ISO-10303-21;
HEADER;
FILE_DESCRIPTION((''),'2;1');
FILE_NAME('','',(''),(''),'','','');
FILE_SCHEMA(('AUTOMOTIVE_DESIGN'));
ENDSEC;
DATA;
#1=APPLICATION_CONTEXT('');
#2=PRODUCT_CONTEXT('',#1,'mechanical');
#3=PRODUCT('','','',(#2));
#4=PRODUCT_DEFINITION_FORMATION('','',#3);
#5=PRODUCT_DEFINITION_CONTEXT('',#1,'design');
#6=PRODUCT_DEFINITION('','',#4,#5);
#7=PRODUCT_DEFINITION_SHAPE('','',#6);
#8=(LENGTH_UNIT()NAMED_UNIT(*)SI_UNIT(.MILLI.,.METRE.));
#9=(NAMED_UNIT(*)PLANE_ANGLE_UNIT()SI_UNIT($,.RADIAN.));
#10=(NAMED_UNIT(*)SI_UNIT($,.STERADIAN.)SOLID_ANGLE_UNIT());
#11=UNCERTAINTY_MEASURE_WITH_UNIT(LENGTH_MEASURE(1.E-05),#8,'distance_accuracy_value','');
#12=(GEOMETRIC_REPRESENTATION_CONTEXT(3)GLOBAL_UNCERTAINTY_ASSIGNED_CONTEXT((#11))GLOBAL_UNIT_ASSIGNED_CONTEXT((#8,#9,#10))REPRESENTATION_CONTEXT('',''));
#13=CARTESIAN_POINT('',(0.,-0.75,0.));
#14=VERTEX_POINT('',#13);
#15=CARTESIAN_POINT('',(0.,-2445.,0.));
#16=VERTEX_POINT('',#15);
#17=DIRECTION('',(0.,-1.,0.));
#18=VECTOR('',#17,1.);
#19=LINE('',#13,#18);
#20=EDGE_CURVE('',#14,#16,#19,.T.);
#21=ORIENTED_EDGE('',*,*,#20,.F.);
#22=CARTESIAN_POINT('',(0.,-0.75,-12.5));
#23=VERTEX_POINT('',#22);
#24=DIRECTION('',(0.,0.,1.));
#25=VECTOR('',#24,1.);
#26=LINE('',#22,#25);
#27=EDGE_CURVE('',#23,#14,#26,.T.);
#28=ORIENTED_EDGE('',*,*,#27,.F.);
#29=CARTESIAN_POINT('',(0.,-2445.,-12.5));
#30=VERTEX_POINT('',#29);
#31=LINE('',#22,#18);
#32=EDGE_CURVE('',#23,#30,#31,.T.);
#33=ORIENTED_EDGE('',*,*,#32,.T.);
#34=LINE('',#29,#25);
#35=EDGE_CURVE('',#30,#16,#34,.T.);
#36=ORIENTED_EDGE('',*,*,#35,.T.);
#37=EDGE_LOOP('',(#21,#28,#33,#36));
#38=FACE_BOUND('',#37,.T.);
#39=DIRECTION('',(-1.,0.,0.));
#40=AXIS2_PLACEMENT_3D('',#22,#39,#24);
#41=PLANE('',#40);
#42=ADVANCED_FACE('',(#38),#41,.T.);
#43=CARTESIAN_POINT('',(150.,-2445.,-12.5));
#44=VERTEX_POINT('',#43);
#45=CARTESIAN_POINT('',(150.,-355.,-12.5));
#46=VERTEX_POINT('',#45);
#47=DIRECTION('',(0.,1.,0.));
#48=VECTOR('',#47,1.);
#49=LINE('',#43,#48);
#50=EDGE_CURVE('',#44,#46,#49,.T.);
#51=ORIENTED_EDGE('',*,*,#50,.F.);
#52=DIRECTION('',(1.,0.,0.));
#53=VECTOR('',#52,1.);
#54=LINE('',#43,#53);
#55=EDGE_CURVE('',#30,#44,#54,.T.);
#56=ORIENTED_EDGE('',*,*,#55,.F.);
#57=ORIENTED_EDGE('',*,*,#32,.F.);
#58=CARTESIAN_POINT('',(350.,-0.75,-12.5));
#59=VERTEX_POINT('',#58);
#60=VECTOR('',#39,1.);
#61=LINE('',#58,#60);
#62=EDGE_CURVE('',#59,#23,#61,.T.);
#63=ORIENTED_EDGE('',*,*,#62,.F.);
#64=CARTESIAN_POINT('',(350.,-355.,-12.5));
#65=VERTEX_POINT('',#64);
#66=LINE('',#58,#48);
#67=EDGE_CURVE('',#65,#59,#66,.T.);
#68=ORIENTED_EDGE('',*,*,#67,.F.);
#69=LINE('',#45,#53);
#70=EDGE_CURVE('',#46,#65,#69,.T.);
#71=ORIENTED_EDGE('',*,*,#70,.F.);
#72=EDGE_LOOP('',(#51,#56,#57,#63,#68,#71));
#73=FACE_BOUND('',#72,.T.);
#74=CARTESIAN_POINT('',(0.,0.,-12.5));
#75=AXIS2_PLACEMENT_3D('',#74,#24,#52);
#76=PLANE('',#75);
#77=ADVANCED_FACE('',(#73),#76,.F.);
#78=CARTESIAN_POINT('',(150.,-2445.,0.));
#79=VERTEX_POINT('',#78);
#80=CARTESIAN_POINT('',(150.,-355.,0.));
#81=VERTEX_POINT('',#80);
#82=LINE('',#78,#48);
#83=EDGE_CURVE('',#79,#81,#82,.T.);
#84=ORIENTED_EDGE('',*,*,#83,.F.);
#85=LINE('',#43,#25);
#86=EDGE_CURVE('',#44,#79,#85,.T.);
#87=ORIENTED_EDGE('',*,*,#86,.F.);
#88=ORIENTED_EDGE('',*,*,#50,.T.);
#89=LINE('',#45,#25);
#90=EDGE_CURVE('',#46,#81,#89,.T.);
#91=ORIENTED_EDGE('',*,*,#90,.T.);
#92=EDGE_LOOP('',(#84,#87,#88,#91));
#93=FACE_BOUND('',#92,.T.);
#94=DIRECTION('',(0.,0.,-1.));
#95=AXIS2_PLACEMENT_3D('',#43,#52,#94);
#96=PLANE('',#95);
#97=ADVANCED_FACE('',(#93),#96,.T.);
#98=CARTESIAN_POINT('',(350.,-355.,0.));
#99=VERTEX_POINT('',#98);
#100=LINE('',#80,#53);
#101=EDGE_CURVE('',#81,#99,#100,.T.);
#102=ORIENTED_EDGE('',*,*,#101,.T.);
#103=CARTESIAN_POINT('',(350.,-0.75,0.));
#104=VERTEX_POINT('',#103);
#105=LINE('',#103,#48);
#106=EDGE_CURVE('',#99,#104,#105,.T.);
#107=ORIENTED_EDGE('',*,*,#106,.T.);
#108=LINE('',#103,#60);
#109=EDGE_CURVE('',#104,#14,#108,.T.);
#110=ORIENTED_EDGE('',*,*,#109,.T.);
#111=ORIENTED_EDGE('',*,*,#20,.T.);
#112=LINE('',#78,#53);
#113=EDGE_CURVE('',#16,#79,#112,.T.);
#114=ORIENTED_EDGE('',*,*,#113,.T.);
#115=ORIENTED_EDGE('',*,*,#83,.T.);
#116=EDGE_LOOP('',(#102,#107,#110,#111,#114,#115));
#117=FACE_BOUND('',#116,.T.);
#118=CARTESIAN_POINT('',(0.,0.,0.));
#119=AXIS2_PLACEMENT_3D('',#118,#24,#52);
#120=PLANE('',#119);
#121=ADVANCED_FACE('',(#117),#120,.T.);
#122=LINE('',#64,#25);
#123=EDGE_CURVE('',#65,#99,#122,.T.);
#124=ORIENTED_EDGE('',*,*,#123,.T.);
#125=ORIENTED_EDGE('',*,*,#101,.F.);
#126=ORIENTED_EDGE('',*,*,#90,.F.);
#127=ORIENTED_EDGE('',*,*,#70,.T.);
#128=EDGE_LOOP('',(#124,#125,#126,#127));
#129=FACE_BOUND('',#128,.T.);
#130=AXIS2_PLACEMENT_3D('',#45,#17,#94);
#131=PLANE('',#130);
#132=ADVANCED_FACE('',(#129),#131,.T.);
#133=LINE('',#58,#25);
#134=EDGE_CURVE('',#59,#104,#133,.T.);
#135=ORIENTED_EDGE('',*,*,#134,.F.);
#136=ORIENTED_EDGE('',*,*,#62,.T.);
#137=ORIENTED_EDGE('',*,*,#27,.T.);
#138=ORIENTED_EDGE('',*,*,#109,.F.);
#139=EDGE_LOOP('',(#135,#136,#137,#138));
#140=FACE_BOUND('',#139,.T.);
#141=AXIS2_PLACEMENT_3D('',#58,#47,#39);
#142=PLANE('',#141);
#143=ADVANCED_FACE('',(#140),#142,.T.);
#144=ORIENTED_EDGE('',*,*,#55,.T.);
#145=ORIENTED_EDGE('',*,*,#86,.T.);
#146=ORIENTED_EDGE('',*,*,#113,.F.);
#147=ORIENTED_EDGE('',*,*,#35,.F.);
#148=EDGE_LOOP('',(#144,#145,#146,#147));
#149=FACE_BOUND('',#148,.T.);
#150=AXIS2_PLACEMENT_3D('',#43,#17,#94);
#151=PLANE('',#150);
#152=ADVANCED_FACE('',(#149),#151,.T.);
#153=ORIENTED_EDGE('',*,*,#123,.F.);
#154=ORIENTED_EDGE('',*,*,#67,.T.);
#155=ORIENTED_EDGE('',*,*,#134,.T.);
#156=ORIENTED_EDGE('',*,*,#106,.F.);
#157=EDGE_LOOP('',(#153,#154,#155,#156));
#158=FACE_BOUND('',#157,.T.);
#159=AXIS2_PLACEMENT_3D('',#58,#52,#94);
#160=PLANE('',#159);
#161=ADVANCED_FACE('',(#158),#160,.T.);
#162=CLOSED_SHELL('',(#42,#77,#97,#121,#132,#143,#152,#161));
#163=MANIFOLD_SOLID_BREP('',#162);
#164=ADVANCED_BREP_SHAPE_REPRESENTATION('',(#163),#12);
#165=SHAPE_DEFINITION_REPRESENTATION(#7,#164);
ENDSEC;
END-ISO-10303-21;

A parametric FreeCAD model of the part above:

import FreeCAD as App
import Part
import Sketcher


def add_polygon(sketch, points):
    """Adds a closed chain of lines whose ends are joined by coincident constraints."""
    first, n = sketch.GeometryCount, len(points)
    for a, b in zip(points, points[1:] + points[:1]):
        sketch.addGeometry(Part.LineSegment(App.Vector(*a, 0), App.Vector(*b, 0)), False)
    for i in range(n):
        sketch.addConstraint(Sketcher.Constraint("Coincident", first + i, 2, first + (i + 1) % n, 1))

doc = App.newDocument("Part")
body = doc.addObject("PartDesign::Body", "Body")

# Sketch on XY plane
sketch1 = doc.addObject("Sketcher::SketchObject", "Sketch")
body.addObject(sketch1)
sketch1.AttachmentSupport = (doc.XY_Plane, [""])
sketch1.MapMode = "FlatFace"
add_polygon(sketch1, [(350, -1), (0, -1), (0, -2445), (150, -2445), (150, -355), (350, -355)])  # lines 0-5
sketch1.addConstraint([
    Sketcher.Constraint("Horizontal", 0),
    Sketcher.Constraint("Vertical", 1),
    Sketcher.Constraint("Horizontal", 2),
    Sketcher.Constraint("Vertical", 3),
    Sketcher.Constraint("Horizontal", 4),
    Sketcher.Constraint("Vertical", 5),
    Sketcher.Constraint("PointOnObject", 0, 2, -2),
    Sketcher.Constraint("DistanceX", 0, 2, 0, 1, 350.0),
    Sketcher.Constraint("DistanceX", 2, 1, 2, 2, 150.0),
    Sketcher.Constraint("DistanceY", 3, 1, 3, 2, 2090.0),
    Sketcher.Constraint("DistanceY", 1, 2, -1, 1, 2445.0),
    Sketcher.Constraint("DistanceY", 1, 2, 1, 1, 2444.25),
])
pad1 = doc.addObject("PartDesign::Pad", "Pad")
body.addObject(pad1)
pad1.Profile = sketch1
pad1.Length = 12.5
pad1.Reversed = True

doc.recompute()
